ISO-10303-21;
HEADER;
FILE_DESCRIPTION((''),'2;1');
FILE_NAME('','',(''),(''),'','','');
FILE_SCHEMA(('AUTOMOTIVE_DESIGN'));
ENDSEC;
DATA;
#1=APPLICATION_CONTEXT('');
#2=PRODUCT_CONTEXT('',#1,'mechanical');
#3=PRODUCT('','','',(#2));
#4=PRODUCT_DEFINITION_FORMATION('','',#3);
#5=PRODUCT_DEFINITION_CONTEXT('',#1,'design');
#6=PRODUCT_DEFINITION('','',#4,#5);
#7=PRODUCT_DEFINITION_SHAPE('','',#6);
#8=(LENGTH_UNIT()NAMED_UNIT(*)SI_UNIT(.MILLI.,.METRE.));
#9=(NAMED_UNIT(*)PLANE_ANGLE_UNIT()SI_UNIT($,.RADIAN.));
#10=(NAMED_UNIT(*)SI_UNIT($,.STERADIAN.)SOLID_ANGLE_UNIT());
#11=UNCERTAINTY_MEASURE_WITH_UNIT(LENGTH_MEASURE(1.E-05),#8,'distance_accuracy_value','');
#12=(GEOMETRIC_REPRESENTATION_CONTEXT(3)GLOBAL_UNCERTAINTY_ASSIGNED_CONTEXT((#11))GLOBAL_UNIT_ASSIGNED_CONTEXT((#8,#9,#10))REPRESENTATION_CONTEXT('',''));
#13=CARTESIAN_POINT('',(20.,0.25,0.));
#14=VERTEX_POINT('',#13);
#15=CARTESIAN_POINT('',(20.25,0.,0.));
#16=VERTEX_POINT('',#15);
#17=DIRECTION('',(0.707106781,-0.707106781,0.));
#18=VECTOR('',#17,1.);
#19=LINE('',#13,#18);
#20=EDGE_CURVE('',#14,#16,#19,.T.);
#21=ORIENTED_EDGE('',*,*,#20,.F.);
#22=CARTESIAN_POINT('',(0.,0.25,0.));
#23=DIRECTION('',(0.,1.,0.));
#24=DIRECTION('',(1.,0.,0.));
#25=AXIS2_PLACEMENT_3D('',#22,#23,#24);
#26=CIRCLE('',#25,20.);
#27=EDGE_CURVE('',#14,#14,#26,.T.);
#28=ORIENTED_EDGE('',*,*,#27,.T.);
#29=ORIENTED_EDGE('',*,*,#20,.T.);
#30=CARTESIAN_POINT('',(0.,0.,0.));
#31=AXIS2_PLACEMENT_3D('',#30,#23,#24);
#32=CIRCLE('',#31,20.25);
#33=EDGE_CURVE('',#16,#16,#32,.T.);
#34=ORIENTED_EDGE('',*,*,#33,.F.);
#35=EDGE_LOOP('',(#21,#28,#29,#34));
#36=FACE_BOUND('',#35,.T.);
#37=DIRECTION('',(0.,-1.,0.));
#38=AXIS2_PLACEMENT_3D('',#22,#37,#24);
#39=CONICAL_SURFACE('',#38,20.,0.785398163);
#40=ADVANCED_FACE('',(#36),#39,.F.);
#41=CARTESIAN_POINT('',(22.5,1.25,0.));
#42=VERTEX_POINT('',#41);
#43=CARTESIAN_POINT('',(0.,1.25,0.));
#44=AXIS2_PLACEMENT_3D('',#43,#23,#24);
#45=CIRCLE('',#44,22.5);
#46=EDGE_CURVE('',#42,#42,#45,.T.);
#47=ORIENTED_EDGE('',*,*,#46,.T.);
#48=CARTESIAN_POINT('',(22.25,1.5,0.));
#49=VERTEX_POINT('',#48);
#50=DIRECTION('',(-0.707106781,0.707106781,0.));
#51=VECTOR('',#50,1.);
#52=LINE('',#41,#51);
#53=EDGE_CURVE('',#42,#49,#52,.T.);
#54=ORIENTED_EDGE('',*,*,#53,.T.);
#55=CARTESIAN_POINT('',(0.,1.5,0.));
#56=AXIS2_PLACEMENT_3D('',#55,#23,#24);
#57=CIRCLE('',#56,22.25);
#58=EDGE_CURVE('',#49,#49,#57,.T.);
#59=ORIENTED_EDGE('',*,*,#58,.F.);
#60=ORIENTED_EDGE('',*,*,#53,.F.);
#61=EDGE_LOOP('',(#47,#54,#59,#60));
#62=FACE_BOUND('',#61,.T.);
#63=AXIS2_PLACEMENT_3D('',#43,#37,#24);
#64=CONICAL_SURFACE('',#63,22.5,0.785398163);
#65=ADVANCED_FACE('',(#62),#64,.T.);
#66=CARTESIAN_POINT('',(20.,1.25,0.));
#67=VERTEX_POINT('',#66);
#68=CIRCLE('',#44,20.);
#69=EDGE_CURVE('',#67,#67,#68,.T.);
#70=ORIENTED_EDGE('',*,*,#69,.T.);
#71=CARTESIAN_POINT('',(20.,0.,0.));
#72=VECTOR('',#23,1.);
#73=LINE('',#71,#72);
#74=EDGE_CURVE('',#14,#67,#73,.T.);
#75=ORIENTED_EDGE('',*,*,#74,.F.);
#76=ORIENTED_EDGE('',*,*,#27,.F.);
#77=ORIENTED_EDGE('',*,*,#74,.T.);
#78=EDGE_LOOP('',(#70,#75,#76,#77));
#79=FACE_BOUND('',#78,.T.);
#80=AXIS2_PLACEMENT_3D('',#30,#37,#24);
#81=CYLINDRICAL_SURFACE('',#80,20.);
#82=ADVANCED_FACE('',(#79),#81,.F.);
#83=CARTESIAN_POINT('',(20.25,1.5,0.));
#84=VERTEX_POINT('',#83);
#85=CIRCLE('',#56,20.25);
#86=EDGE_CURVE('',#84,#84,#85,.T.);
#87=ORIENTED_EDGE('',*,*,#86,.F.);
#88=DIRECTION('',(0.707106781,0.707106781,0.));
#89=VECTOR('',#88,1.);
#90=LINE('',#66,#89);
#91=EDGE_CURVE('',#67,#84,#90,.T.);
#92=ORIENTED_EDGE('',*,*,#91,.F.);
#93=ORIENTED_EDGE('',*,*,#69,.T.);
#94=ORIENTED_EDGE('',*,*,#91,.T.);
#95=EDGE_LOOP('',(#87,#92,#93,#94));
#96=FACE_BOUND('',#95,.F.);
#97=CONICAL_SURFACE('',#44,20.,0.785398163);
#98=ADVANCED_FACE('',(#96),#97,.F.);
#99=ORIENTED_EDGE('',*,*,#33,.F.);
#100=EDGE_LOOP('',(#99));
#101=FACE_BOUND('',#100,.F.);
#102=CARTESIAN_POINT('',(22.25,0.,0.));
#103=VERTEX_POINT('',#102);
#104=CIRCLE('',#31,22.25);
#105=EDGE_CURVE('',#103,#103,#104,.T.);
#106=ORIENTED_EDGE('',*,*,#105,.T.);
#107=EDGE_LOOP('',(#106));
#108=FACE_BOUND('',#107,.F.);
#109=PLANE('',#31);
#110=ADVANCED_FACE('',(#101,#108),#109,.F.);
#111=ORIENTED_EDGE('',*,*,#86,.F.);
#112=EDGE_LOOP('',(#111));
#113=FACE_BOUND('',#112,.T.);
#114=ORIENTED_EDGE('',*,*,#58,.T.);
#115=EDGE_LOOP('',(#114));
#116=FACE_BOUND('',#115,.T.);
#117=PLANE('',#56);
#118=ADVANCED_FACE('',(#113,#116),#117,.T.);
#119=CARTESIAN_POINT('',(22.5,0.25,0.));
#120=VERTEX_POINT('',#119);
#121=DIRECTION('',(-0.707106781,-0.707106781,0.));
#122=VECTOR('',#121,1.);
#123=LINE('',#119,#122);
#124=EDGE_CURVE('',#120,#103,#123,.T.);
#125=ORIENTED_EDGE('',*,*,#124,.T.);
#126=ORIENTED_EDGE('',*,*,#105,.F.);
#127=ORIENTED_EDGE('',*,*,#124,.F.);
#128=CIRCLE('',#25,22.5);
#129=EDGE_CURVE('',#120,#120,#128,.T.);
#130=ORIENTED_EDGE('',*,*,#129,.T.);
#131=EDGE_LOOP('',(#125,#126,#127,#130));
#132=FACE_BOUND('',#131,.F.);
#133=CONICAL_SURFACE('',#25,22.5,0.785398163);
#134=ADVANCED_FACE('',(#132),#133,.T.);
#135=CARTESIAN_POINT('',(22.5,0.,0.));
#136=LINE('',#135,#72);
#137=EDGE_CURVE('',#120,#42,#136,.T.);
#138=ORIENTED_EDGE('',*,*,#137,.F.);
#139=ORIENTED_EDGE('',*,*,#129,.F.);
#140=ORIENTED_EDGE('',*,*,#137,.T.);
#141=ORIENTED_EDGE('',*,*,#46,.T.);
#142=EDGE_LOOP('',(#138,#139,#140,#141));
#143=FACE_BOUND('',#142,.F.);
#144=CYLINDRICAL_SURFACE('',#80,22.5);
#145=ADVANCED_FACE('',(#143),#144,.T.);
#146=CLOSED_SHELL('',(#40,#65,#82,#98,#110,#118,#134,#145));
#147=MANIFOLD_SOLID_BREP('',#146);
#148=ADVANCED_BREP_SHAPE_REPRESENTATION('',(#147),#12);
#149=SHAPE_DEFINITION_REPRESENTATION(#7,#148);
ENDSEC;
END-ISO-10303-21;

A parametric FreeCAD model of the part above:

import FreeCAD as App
import Part
import Sketcher


def edges_at(feature, points):
    """Names of the edges that pass closest to the given points."""
    edges = feature.Shape.Edges
    near = lambda p: min(range(len(edges)), key=lambda i: edges[i].distToShape(Part.Vertex(*p))[0])
    return sorted({f"Edge{near(p) + 1}" for p in points})

doc = App.newDocument("Part")
body = doc.addObject("PartDesign::Body", "Body")

# Sketch on XZ plane
sketch1 = body.newObject("Sketcher::SketchObject", "Sketch")
sketch1.AttachmentSupport = (doc.getObject("XZ_Plane"), [""])
sketch1.MapMode = "FlatFace"
sketch1.addGeometry(Part.Circle(App.Vector(0, 0, 0), App.Vector(0, 0, 1), 22.5), False)
sketch1.addGeometry(Part.Circle(App.Vector(0, 0, 0), App.Vector(0, 0, 1), 20), False)
sketch1.addConstraint(Sketcher.Constraint("Coincident", 0, 3, -1, 1))
sketch1.addConstraint(Sketcher.Constraint("Coincident", 1, 3, -1, 1))
sketch1.addConstraint(Sketcher.Constraint("Diameter", 0, 45.0))
sketch1.addConstraint(Sketcher.Constraint("Diameter", 1, 40.0))
pad1 = body.newObject("PartDesign::Pad", "Pad")
pad1.Profile = sketch1
pad1.Length = 1.5
pad1.Reversed = True
doc.recompute()

chamfer = body.newObject("PartDesign::Chamfer", "Chamfer")
chamfer.Base = (pad1, edges_at(pad1, [
    (-18.646, 1.5, -7.232),
    (-18.646, 0, -7.232),
    (-20.977, 1.5, 8.136),
    (-20.977, 0, 8.136),
]))
chamfer.Size = 0.25

doc.recompute()
